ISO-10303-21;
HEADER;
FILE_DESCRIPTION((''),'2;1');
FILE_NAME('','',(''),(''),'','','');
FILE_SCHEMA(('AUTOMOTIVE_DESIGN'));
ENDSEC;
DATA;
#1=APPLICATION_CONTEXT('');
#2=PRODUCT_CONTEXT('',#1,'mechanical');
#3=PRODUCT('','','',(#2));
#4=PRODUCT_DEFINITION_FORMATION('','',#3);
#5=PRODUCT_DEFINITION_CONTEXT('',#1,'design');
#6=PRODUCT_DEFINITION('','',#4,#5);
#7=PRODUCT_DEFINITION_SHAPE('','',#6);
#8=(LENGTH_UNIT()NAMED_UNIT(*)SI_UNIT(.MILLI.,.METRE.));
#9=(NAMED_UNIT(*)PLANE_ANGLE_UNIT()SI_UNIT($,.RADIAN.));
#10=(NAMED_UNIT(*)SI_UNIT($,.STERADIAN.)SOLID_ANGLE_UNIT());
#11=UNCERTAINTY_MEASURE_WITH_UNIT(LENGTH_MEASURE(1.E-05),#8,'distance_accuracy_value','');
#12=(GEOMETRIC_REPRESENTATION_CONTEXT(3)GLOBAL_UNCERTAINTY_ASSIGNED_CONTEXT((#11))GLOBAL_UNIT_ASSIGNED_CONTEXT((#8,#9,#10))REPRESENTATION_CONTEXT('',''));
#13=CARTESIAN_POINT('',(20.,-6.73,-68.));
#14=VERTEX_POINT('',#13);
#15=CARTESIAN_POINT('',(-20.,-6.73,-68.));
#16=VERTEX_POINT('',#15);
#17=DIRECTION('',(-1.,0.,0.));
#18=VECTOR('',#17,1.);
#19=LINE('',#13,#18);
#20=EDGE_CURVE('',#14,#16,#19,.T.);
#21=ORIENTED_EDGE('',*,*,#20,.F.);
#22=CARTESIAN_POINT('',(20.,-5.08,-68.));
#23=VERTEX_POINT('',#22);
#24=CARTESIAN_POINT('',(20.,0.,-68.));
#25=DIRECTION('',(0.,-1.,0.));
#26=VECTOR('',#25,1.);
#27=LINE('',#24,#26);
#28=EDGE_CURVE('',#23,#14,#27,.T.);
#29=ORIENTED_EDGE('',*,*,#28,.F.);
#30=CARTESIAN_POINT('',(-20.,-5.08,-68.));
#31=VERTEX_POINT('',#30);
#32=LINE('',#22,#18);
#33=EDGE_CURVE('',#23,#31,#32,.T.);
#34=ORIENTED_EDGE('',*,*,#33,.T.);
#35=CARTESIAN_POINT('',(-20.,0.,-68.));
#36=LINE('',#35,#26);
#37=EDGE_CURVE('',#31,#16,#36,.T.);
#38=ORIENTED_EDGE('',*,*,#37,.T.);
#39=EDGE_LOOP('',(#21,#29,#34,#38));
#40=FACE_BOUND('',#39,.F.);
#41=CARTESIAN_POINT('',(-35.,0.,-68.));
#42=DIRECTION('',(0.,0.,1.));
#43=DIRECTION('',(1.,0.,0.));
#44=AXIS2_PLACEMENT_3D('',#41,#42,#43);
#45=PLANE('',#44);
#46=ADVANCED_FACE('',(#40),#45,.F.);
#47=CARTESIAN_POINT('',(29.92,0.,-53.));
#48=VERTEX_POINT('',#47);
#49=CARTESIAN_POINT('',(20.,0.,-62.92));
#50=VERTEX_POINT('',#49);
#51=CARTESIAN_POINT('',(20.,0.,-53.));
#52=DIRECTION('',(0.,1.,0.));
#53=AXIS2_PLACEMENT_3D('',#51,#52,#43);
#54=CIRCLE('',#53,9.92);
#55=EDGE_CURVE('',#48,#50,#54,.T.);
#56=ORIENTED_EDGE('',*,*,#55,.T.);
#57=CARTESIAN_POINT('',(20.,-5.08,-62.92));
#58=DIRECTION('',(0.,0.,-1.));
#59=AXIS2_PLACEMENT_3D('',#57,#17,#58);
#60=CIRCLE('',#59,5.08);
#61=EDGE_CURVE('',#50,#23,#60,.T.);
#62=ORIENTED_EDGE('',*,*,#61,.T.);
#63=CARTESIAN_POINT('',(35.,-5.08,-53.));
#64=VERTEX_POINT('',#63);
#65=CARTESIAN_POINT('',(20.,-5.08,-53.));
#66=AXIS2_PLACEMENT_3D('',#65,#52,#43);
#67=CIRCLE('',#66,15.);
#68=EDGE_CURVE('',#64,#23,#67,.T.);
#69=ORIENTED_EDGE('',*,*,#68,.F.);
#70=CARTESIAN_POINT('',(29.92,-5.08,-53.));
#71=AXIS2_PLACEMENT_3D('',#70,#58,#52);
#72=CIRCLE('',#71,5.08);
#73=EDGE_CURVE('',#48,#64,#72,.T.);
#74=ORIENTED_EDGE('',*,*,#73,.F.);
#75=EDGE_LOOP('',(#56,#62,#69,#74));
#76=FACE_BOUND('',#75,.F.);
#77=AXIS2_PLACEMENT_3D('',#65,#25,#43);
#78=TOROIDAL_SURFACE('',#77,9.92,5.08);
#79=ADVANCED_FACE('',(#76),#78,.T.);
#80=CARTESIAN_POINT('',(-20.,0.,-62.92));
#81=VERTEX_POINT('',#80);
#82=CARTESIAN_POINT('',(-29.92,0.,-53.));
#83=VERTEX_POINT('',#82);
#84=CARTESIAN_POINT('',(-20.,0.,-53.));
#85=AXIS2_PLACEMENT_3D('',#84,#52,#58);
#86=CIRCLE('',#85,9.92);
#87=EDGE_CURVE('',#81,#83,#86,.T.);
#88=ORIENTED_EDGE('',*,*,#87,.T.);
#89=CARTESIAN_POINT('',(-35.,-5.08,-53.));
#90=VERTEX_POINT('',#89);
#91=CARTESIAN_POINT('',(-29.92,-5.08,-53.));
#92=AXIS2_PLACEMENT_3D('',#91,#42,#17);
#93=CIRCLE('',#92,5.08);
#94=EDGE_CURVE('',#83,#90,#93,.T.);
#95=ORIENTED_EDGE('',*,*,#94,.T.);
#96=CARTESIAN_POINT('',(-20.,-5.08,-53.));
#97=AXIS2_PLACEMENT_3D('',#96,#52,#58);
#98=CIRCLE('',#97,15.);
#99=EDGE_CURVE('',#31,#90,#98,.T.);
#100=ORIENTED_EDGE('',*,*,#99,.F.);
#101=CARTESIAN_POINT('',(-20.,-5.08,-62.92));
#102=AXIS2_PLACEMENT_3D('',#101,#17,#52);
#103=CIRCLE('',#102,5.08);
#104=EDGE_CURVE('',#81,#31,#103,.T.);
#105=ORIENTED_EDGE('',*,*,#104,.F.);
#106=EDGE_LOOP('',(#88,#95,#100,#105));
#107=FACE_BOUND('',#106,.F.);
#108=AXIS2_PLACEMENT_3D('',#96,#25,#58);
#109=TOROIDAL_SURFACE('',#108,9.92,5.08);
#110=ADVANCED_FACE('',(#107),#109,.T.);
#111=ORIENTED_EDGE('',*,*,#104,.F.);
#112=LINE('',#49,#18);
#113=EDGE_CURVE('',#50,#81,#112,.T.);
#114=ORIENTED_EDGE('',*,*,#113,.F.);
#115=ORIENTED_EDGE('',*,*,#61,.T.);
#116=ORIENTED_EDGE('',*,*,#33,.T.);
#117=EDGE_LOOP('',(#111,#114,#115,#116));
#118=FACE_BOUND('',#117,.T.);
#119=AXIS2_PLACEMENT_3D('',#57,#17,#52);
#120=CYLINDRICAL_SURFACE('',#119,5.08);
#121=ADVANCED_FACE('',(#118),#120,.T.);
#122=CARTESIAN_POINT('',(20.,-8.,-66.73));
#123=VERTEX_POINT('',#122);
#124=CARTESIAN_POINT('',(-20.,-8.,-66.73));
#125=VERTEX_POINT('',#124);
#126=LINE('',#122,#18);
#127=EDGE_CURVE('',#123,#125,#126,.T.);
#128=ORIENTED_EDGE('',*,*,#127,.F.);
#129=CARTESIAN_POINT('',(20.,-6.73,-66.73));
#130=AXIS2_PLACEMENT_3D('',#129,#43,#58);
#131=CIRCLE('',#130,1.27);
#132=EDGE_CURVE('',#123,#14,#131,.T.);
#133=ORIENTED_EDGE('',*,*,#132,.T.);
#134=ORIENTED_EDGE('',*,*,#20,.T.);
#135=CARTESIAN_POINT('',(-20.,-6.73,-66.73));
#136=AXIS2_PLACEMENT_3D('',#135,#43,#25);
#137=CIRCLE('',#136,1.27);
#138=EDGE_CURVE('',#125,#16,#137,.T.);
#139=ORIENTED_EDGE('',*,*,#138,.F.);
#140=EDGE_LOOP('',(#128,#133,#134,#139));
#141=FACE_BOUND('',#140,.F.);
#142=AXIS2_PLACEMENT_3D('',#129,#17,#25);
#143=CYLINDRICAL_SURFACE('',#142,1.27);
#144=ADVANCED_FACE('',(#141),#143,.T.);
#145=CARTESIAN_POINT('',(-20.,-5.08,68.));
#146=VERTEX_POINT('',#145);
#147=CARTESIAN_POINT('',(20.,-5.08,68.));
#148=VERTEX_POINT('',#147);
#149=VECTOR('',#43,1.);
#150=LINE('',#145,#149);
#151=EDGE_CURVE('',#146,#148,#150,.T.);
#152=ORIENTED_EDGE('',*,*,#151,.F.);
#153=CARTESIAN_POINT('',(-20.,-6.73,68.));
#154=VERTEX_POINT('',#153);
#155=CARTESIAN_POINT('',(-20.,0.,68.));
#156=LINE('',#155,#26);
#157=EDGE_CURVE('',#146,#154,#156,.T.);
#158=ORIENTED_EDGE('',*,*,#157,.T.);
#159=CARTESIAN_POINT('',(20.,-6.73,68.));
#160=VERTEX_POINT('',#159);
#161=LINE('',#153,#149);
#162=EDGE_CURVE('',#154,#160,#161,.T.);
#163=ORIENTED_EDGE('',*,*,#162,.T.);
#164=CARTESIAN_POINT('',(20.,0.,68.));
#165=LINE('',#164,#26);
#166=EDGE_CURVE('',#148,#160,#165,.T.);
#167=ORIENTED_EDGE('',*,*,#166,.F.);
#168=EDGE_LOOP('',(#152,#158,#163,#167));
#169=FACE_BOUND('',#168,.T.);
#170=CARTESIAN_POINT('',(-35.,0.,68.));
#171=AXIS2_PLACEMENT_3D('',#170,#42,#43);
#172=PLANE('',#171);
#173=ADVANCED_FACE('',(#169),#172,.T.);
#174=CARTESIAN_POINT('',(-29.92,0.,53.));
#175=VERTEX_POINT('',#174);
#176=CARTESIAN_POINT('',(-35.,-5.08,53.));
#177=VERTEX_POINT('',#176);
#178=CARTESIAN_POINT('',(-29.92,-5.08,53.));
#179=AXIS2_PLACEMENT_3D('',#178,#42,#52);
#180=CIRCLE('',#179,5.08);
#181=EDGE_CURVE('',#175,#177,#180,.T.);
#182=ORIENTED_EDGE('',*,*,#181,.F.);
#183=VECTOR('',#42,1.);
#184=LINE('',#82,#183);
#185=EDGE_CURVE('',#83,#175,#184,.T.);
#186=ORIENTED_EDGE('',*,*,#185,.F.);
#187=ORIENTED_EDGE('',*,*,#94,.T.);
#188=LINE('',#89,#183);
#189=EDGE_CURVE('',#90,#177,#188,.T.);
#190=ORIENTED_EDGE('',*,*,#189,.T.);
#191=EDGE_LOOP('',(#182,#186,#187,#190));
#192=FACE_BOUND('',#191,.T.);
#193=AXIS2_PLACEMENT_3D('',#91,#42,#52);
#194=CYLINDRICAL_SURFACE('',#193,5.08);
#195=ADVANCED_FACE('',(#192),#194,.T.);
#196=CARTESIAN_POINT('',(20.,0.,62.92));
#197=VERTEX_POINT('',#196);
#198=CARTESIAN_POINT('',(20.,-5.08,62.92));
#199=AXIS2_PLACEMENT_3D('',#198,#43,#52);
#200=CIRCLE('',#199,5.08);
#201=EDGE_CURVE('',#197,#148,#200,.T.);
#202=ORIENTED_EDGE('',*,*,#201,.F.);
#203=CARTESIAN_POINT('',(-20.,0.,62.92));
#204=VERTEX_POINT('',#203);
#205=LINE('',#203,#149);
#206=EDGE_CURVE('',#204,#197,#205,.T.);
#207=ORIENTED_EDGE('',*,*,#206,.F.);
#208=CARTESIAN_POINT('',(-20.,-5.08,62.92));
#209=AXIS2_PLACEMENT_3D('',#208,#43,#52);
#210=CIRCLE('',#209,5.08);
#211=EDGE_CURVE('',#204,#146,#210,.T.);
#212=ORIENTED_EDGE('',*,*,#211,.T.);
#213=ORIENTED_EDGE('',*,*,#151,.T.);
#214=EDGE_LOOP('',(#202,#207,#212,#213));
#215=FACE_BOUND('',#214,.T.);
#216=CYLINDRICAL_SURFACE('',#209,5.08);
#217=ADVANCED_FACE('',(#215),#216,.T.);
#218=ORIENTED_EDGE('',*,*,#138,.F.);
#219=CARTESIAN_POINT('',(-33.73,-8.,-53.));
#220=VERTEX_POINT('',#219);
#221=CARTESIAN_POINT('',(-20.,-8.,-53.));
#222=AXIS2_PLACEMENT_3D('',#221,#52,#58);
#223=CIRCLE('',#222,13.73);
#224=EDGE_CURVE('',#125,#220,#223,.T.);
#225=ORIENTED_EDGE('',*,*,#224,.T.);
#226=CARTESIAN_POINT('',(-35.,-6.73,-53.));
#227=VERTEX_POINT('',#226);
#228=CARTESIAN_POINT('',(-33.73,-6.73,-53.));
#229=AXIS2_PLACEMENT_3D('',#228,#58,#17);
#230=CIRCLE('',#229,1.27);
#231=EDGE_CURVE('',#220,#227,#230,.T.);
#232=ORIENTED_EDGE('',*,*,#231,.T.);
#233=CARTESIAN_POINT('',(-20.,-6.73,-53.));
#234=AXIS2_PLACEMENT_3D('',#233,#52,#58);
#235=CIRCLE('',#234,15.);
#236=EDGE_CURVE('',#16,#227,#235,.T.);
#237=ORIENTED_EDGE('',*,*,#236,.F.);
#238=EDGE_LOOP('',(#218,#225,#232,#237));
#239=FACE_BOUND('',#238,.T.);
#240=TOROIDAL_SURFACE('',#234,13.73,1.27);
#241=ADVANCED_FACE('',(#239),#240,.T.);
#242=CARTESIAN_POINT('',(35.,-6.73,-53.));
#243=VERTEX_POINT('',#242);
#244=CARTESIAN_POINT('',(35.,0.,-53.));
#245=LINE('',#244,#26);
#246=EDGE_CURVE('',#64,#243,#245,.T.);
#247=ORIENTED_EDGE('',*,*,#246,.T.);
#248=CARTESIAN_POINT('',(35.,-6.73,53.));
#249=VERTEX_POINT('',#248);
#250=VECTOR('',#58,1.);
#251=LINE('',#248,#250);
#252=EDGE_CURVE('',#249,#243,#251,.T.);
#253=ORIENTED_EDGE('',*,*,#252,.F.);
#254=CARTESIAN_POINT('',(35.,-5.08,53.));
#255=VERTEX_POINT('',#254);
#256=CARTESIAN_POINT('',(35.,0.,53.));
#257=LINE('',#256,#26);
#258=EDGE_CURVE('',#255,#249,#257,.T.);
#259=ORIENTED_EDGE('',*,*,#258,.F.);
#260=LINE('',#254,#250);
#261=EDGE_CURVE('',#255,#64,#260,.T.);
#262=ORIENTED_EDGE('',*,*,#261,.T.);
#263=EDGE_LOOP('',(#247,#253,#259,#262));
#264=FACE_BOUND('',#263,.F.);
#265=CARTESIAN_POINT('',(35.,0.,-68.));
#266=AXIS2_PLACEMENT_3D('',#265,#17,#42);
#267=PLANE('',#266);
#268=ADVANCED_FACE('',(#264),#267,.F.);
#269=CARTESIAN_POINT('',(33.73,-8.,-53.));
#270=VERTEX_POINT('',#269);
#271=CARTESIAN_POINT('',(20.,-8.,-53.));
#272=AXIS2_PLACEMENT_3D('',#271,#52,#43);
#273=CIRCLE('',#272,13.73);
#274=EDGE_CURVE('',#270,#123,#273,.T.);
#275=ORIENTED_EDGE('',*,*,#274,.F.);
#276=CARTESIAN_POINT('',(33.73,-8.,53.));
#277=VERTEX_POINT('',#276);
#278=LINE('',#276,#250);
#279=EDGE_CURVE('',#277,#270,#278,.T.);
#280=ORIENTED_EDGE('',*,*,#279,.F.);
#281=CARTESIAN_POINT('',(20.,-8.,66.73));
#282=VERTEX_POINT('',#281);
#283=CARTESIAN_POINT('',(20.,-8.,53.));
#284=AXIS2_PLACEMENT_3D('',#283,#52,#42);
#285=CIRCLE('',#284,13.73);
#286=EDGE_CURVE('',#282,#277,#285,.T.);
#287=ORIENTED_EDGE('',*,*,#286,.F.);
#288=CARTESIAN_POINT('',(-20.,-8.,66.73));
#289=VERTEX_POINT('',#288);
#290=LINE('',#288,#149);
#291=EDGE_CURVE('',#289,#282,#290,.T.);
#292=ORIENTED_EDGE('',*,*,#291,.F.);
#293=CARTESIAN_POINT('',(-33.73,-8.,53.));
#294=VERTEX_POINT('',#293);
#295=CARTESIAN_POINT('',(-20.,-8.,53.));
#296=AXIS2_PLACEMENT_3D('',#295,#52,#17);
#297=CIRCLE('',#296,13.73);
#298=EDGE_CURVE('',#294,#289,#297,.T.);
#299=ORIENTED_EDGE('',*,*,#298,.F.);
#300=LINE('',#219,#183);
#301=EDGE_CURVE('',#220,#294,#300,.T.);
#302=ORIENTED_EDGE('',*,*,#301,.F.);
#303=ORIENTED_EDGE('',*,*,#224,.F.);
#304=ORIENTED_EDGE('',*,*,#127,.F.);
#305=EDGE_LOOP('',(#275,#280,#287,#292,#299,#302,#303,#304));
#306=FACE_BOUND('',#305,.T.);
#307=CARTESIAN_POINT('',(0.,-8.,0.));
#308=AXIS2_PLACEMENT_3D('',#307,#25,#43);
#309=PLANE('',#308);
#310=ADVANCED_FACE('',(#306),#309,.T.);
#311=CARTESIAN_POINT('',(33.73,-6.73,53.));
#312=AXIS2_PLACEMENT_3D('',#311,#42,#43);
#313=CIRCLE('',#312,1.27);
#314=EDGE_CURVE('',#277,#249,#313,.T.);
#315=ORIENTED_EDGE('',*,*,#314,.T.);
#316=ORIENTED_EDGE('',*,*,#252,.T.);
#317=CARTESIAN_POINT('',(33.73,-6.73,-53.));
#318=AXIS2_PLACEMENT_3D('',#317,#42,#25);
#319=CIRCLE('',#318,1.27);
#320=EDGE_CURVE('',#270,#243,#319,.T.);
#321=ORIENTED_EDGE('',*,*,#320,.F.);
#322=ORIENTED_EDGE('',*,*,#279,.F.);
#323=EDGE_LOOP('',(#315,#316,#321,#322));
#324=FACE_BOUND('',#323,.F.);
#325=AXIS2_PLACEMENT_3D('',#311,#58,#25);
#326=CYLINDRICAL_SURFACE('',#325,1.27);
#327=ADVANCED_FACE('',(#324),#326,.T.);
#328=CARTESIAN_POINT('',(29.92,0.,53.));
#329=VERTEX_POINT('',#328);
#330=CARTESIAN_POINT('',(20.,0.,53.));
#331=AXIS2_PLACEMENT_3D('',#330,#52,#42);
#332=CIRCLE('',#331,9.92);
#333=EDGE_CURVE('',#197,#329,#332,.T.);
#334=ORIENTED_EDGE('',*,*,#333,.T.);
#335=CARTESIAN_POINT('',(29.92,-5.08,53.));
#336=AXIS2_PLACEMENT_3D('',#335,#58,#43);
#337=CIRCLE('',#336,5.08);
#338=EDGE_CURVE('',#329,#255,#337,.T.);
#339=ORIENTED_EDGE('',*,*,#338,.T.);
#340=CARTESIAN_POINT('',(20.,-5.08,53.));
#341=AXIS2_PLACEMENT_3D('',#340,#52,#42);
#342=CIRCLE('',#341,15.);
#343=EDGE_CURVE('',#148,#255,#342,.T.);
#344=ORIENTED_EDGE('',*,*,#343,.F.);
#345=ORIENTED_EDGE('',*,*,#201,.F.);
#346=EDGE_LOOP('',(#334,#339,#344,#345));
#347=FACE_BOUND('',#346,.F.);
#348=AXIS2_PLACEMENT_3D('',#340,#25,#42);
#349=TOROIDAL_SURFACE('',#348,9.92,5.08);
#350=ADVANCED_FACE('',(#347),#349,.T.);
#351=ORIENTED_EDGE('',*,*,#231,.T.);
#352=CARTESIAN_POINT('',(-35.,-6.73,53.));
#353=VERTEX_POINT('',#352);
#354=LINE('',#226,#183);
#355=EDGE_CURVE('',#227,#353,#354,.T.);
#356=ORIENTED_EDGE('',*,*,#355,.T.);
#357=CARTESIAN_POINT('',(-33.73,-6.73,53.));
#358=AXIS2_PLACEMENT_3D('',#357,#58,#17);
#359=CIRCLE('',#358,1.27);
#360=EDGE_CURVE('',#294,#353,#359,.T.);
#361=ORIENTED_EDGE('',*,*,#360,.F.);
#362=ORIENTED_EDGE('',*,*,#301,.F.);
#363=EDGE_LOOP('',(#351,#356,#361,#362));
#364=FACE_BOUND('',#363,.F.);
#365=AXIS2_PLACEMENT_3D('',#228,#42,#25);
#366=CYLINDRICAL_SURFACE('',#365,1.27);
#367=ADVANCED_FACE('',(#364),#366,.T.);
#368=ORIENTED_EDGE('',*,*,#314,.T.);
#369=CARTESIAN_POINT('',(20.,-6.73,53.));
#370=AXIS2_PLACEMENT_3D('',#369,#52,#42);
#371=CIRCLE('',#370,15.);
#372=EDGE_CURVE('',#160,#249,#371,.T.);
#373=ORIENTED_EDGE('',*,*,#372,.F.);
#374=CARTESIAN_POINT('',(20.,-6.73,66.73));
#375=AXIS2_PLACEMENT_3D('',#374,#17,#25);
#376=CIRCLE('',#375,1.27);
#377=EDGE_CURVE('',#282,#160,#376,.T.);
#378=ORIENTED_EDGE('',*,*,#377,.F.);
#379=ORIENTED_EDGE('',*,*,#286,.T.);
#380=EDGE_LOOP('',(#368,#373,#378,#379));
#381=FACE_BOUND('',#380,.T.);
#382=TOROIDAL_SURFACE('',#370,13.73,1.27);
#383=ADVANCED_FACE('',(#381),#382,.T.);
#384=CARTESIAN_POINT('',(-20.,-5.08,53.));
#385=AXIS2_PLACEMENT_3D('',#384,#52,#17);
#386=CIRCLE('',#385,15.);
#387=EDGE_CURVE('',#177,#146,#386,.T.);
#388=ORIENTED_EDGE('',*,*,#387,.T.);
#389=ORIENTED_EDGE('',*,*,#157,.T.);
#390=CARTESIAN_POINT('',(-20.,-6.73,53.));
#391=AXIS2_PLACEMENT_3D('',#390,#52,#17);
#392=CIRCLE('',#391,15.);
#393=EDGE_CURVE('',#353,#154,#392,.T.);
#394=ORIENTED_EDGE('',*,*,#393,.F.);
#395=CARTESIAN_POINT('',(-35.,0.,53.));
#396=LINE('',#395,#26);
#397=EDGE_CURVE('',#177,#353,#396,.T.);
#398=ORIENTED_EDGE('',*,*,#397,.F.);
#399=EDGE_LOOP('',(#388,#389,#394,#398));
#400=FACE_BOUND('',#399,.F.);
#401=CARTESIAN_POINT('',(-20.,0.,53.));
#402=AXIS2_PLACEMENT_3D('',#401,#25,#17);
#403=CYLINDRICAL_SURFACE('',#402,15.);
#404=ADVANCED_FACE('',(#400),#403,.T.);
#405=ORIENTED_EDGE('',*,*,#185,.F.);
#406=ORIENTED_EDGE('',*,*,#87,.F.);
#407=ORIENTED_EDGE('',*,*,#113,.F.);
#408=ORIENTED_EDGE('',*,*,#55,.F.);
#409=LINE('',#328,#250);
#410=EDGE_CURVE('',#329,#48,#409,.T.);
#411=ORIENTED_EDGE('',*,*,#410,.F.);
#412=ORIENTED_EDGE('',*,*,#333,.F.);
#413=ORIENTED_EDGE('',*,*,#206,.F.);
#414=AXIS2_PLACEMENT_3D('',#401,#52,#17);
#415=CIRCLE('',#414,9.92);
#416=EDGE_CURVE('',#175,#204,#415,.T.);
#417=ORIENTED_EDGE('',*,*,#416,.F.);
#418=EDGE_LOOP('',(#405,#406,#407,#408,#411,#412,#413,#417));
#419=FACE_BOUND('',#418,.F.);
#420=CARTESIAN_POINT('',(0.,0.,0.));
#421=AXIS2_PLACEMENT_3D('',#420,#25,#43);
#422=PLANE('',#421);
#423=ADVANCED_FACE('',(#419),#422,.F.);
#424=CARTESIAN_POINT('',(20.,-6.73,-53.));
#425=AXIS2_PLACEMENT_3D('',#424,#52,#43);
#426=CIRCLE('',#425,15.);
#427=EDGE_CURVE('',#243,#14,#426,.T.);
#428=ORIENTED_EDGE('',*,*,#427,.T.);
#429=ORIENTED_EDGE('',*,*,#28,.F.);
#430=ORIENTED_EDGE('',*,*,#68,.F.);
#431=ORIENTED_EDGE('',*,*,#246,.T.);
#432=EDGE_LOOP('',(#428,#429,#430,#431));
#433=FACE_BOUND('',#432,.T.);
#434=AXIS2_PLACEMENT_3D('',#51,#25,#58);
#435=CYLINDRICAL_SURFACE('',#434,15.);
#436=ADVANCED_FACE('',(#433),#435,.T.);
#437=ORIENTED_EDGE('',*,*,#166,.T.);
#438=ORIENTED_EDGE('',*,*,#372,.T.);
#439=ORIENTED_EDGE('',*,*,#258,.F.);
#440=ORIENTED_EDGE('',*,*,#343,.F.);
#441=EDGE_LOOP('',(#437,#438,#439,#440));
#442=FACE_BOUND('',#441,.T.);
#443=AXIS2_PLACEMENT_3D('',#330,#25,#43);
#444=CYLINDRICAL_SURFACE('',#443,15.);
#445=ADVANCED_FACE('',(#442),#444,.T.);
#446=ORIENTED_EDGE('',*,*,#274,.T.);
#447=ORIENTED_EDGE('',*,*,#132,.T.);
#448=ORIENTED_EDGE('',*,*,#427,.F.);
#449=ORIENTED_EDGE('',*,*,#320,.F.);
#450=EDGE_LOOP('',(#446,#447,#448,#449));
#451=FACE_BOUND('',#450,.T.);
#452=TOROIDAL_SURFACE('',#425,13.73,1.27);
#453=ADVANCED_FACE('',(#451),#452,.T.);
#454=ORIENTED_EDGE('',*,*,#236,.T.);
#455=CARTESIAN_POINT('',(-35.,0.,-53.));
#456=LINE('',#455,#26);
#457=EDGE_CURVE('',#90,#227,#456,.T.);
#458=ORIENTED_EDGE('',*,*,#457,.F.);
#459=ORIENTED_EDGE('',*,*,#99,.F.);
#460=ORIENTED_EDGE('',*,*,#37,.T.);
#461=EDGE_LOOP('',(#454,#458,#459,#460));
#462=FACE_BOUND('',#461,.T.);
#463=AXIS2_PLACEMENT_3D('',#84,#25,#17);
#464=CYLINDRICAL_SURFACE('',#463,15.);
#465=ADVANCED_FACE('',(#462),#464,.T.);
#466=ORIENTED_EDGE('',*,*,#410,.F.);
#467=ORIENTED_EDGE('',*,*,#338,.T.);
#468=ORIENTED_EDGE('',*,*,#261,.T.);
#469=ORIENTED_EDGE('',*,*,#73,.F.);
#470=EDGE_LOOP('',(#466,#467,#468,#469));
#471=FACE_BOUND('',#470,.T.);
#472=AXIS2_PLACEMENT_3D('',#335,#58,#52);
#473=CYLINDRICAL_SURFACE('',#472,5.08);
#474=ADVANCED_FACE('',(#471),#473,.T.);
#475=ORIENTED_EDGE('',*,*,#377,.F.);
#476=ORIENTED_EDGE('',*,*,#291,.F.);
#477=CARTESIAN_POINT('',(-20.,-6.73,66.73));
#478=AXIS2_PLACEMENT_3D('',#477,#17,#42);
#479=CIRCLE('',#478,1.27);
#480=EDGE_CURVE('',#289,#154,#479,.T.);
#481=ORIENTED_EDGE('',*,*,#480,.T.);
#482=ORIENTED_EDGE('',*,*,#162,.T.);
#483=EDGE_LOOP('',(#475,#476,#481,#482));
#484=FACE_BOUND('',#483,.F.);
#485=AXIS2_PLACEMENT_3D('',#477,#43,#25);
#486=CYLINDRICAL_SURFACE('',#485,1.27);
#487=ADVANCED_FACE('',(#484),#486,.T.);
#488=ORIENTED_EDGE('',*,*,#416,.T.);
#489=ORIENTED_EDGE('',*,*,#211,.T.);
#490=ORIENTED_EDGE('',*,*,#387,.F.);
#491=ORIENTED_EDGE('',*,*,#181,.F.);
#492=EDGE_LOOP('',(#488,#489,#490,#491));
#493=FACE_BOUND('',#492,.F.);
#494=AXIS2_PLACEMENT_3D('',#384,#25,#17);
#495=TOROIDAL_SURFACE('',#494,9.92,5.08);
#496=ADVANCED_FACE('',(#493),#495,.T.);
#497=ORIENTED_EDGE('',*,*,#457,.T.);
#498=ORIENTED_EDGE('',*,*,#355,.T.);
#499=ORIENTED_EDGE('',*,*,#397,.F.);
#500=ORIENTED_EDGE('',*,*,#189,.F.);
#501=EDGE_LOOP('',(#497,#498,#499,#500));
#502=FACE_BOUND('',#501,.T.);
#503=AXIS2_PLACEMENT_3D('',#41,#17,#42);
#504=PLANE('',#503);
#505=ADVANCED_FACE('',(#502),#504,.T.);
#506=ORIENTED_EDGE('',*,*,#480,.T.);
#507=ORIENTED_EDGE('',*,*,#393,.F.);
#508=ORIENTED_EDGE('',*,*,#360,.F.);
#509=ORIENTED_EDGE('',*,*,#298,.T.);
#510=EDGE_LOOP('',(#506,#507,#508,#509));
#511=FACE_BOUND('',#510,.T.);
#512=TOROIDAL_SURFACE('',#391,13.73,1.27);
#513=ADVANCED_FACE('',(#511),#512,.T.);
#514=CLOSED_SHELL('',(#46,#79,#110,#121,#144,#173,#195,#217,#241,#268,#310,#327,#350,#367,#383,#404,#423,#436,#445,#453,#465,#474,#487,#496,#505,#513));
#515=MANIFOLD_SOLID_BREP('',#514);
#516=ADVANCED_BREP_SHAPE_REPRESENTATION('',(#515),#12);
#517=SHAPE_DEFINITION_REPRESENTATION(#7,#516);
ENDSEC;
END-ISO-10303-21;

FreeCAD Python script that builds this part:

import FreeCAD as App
import Part
import Sketcher

V = App.Vector


def edges_at(feature, points):
    """Names of the edges that pass closest to the given points."""
    edges = feature.Shape.Edges
    near = lambda p: min(range(len(edges)), key=lambda i: edges[i].distToShape(Part.Vertex(*p))[0])
    return sorted({f"Edge{near(p) + 1}" for p in points})


def add_polygon(sketch, points):
    """Adds a closed chain of lines whose ends are joined by coincident constraints."""
    first, n = sketch.GeometryCount, len(points)
    for a, b in zip(points, points[1:] + points[:1]):
        sketch.addGeometry(Part.LineSegment(App.Vector(*a, 0), App.Vector(*b, 0)), False)
    for i in range(n):
        sketch.addConstraint(Sketcher.Constraint("Coincident", first + i, 2, first + (i + 1) % n, 1))

doc = App.newDocument("Part")
body = doc.addObject("PartDesign::Body", "Body")

# Sketch on XZ plane
sketch1 = doc.addObject("Sketcher::SketchObject", "Sketch")
body.addObject(sketch1)
sketch1.AttachmentSupport = (doc.XZ_Plane, [""])
sketch1.MapMode = "FlatFace"
add_polygon(sketch1, [(-35, 68), (-35, -68), (35, -68), (35, 68)])  # lines 0-3
sketch1.addConstraint(Sketcher.Constraint("Vertical", 0))
sketch1.addConstraint(Sketcher.Constraint("Horizontal", 1))
sketch1.addConstraint(Sketcher.Constraint("Vertical", 2))
sketch1.addConstraint(Sketcher.Constraint("Horizontal", 3))
sketch1.addConstraint(Sketcher.Constraint("Symmetric", 0, 2, 2, 2, -1, 1))
sketch1.addConstraint(Sketcher.Constraint("DistanceX", 1, 1, 1, 2, 70.0))
sketch1.addConstraint(Sketcher.Constraint("DistanceY", 0, 2, 0, 1, 136.0))
pad1 = doc.addObject("PartDesign::Pad", "Pad")
body.addObject(pad1)
pad1.Profile = sketch1
pad1.Length = 8
doc.recompute()

fillet = doc.addObject("PartDesign::Fillet", "Fillet")
body.addObject(fillet)
fillet.Base = (pad1, edges_at(pad1, [
    (35, -4, 68),
    (-35, -4, 68),
    (35, -4, -68),
    (-35, -4, -68),
]))
fillet.Radius = 15
doc.recompute()

fillet2 = doc.addObject("PartDesign::Fillet", "Fillet001")
body.addObject(fillet2)
fillet2.Base = (fillet, edges_at(fillet, [(0, 0, 68), (30.607, 0, 63.607)]))
fillet2.Radius = 5.08
doc.recompute()

fillet3 = doc.addObject("PartDesign::Fillet", "Fillet002")
body.addObject(fillet3)
fillet3.Base = (fillet2, edges_at(fillet2, [(-30.607, -8, 63.607), (0, -8, 68)]))
fillet3.Radius = 1.27

doc.recompute()
